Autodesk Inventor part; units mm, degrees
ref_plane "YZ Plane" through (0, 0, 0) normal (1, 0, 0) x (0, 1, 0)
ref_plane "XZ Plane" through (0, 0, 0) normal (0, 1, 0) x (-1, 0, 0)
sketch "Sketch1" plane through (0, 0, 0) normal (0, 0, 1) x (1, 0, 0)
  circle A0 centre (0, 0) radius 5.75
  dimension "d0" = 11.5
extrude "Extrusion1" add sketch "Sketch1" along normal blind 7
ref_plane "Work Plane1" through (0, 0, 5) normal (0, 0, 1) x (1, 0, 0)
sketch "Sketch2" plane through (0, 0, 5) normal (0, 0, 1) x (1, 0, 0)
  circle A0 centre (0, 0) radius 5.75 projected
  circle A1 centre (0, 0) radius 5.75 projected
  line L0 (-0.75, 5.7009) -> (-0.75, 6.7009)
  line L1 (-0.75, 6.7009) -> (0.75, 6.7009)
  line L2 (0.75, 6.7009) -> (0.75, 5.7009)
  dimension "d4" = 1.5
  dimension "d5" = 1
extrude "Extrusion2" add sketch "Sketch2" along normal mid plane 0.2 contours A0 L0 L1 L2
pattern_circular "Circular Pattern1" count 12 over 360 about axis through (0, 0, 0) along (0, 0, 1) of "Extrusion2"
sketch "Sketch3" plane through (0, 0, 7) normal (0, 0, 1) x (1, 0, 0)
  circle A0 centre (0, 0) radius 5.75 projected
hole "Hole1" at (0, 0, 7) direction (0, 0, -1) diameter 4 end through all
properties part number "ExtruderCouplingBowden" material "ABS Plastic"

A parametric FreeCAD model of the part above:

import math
import FreeCAD as App
import Part
import Sketcher

V = App.Vector
Q = App.Units.Quantity

doc = App.newDocument("Part")
params = doc.addObject("Spreadsheet::Sheet", "Params")
for row, (alias, value) in enumerate([
    ("sketch1_diameter", "11.5 mm"),
    ("pad1_length", "7 mm"),
    ("sketch2_height", "1 mm"),
    ("sketch2_width", "1.5 mm"),
    ("sketch2_radius", "5.75 mm"),
    ("pad2_length", "0.2 mm"),
    ("sketch3_diameter", "4 mm"),
    ("hole_diameter", "4 mm"),
], start=1):
    params.set(f"A{row}", alias)
    params.set(f"B{row}", "=" + value)
    params.setAlias(f"B{row}", alias)

body = doc.addObject("PartDesign::Body", "Body")

# Sketch on XY plane
sketch1 = body.newObject("Sketcher::SketchObject", "Sketch")
sketch1.AttachmentSupport = (doc.getObject("XY_Plane"), [""])
sketch1.MapMode = "FlatFace"
sketch1.addGeometry(Part.Circle(V(0, 0, 0), V(0, 0, 1), 6), False)
sketch1.addConstraint([
    Sketcher.Constraint("Coincident", 0, 3, -1, 1),
    Sketcher.Constraint("Diameter", 0, Q("11.5 mm")),
])
sketch1.setExpression("Constraints[1]", "Params.sketch1_diameter")
pad1 = body.newObject("PartDesign::Pad", "Pad")
pad1.Profile = sketch1
pad1.setExpression("Length", "Params.pad1_length")

# Sketch on XY plane
sketch2 = body.newObject("Sketcher::SketchObject", "Sketch001")
sketch2.AttachmentSupport = (doc.getObject("XY_Plane"), [""])
sketch2.MapMode = "FlatFace"
sketch2.AttachmentOffset = App.Placement(V(0, 0, 5), App.Rotation())
sketch2.addGeometry([
    Part.ArcOfCircle(Part.Circle(V(0, 0, 0), V(0, 0, 1), 5.8), math.radians(82.51), math.radians(97.49)),
    Part.LineSegment(V(0.8, 5.7, 0), V(0.8, 6.7, 0)),
    Part.LineSegment(V(0.8, 6.7, 0), V(-0.8, 6.7, 0)),
    Part.LineSegment(V(-0.8, 6.7, 0), V(-0.8, 5.7, 0)),
], False)
sketch2.addConstraint([
    Sketcher.Constraint("Coincident", 0, 1, 1, 1),
    Sketcher.Constraint("Coincident", 1, 2, 2, 1),
    Sketcher.Constraint("Coincident", 2, 2, 3, 1),
    Sketcher.Constraint("Coincident", 3, 2, 0, 2),
    Sketcher.Constraint("Vertical", 1),
    Sketcher.Constraint("Horizontal", 2),
    Sketcher.Constraint("Vertical", 3),
    Sketcher.Constraint("Coincident", 0, 3, -1, 1),
    Sketcher.Constraint("Horizontal", 0, 1, 3, 2),
    Sketcher.Constraint("DistanceY", 1, 1, 1, 2, Q("1 mm")),
    Sketcher.Constraint("DistanceX", 2, 2, 2, 1, Q("1.5 mm")),
    Sketcher.Constraint("Radius", 0, Q("5.75 mm")),
])
sketch2.setExpression("Constraints[9]", "Params.sketch2_height")
sketch2.setExpression("Constraints[10]", "Params.sketch2_width")
sketch2.setExpression("Constraints[11]", "Params.sketch2_radius")
pad2 = body.newObject("PartDesign::Pad", "Pad001")
pad2.Profile = sketch2
pad2.setExpression("Length", "Params.pad2_length")
pad2.Midplane = True
doc.recompute()

polarpattern = body.newObject("PartDesign::PolarPattern", "PolarPattern")
polarpattern.Originals = [pad2]
polarpattern.Axis = (doc.getObject("Z_Axis"), [""])
polarpattern.Angle = 360
polarpattern.Occurrences = 12
body.Tip = polarpattern

# Sketch on XY plane
sketch3 = body.newObject("Sketcher::SketchObject", "Sketch002")
sketch3.AttachmentSupport = (doc.getObject("XY_Plane"), [""])
sketch3.MapMode = "FlatFace"
sketch3.AttachmentOffset = App.Placement(V(0, 0, 7), App.Rotation())
sketch3.addGeometry(Part.Circle(V(0, 0, 0), V(0, 0, 1), 2), False)
sketch3.addConstraint([
    Sketcher.Constraint("Coincident", 0, 3, -1, 1),
    Sketcher.Constraint("Diameter", 0, Q("4 mm")),
])
sketch3.setExpression("Constraints[1]", "Params.sketch3_diameter")
doc.recompute()
hole = body.newObject("PartDesign::Hole", "Hole")
hole.Profile = sketch3
hole.ThreadType = "None"
hole.setExpression("Diameter", "Params.hole_diameter")
hole.DepthType = "ThroughAll"

doc.recompute()
